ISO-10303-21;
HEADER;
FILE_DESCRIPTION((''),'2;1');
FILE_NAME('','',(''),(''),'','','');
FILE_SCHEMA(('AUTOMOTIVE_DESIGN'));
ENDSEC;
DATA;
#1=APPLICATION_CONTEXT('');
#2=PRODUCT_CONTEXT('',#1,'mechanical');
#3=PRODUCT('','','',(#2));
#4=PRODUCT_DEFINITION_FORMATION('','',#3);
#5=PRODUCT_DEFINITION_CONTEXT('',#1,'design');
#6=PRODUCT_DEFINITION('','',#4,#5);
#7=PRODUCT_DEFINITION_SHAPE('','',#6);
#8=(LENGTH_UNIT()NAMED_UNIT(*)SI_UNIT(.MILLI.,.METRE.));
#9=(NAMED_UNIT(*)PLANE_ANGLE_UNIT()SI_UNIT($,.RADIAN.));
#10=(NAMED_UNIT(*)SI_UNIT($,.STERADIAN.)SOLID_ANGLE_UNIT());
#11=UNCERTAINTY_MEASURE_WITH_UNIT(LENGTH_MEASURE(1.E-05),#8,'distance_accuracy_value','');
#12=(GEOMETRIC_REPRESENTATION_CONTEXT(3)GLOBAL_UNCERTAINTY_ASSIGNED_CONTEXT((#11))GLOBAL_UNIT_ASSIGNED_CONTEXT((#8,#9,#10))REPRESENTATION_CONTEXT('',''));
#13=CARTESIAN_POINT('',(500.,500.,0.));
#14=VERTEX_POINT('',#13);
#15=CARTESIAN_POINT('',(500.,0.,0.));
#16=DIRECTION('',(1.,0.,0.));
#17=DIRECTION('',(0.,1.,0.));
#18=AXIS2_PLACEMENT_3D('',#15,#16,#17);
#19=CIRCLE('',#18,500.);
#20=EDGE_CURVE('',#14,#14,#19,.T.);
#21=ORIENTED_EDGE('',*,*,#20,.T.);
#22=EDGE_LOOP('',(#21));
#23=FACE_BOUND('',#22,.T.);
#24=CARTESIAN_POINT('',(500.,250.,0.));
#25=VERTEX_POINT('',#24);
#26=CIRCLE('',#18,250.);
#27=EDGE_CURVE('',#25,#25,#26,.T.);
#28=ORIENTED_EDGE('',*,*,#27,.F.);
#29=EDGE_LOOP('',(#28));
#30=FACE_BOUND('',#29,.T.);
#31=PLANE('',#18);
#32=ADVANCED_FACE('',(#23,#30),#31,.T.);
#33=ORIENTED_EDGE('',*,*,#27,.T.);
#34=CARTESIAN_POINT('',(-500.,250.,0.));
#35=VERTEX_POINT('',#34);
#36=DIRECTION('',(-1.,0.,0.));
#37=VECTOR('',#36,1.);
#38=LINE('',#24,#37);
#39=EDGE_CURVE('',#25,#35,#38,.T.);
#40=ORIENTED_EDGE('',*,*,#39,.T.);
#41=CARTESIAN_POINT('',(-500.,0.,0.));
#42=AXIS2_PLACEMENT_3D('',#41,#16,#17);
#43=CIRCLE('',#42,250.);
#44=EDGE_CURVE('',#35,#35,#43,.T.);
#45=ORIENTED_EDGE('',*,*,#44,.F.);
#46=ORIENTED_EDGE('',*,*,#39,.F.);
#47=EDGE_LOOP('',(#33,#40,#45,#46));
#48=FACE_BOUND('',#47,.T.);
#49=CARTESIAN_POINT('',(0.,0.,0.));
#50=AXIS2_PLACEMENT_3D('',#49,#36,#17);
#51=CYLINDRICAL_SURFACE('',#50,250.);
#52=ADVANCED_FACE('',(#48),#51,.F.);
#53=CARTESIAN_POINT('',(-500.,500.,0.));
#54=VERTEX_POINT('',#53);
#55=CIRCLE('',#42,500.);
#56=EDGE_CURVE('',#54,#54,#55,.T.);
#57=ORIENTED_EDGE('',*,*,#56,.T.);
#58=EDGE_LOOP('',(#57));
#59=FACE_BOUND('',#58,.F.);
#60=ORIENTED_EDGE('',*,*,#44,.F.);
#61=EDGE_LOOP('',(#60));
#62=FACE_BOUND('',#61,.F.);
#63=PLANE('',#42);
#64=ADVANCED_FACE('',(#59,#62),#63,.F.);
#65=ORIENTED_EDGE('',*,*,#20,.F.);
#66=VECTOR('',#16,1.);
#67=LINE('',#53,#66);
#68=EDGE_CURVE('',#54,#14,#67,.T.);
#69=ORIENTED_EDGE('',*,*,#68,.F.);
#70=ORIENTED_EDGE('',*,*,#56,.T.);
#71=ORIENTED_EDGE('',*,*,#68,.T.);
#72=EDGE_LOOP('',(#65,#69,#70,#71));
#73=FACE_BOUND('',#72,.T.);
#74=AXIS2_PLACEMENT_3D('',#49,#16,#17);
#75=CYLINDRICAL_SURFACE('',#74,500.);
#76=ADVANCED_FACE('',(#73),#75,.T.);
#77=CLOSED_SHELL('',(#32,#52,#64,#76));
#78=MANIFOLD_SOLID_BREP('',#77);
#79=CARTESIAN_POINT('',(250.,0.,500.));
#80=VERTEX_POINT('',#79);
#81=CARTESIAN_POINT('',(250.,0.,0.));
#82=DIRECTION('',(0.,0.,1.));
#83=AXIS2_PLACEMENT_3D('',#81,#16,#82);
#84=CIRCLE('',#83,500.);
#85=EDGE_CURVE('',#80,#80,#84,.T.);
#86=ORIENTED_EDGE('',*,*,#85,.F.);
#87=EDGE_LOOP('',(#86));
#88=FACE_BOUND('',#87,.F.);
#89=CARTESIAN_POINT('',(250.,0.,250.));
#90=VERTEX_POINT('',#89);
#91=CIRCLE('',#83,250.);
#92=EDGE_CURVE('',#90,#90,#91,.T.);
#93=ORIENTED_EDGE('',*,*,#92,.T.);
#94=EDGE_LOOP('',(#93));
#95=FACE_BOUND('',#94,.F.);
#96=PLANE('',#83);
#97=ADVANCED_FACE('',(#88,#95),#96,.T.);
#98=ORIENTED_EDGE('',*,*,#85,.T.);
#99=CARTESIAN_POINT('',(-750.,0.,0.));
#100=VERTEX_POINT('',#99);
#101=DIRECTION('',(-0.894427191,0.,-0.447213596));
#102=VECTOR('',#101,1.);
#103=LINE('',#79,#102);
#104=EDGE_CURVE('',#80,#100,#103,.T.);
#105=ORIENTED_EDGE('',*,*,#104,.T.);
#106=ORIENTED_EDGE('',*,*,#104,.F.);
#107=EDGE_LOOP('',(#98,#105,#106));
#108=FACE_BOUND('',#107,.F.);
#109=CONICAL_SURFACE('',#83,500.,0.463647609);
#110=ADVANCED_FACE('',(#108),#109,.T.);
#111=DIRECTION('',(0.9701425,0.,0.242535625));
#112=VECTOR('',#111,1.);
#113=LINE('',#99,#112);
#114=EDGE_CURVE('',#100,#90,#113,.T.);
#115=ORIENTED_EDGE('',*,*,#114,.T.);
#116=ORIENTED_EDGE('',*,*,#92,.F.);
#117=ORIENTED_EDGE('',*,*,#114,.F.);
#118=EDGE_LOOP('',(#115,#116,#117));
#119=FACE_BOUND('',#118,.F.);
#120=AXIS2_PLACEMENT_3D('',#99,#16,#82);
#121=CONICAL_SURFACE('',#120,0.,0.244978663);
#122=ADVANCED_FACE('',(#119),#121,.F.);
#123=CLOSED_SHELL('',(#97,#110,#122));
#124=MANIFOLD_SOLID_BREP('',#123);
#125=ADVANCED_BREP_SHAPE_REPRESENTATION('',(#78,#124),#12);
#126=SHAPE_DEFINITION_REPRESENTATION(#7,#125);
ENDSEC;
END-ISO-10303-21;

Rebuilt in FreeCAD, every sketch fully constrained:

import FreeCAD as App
import Part
import Sketcher
from FreeCAD import Vector
Q = App.Units.Quantity


def add_polygon(sketch, points):
    """Adds a closed chain of lines whose ends are joined by coincident constraints."""
    first, n = sketch.GeometryCount, len(points)
    for a, b in zip(points, points[1:] + points[:1]):
        sketch.addGeometry(Part.LineSegment(App.Vector(*a, 0), App.Vector(*b, 0)), False)
    for i in range(n):
        sketch.addConstraint(Sketcher.Constraint("Coincident", first + i, 2, first + (i + 1) % n, 1))

doc = App.newDocument("Part")
params = doc.addObject("Spreadsheet::Sheet", "Params")
for row, (alias, value) in enumerate([
    ("sketch1_diameter", "1000 mm"),
    ("sketch1_diameter2", "500 mm"),
    ("pad1_length", "1000 mm"),
    ("sketch2_height", "250 mm"),
    ("revolution_angle", "360 deg"),
], start=1):
    params.set(f"A{row}", alias)
    params.set(f"B{row}", "=" + value)
    params.setAlias(f"B{row}", alias)

body = doc.addObject("PartDesign::Body", "Body")

# Sketch on YZ plane
sketch1 = body.newObject("Sketcher::SketchObject", "Sketch")
sketch1.AttachmentSupport = (doc.getObject("YZ_Plane"), [""])
sketch1.MapMode = "FlatFace"
sketch1.addGeometry(Part.Circle(Vector(0, 0, 0), Vector(0, 0, 1), 500), False)
sketch1.addGeometry(Part.Circle(Vector(0, 0, 0), Vector(0, 0, 1), 250), False)
sketch1.addConstraint(Sketcher.Constraint("Coincident", 0, 3, -1, 1))
sketch1.addConstraint(Sketcher.Constraint("Coincident", 1, 3, -1, 1))
sketch1.addConstraint(Sketcher.Constraint("Diameter", 0, Q("1000 mm")))
sketch1.addConstraint(Sketcher.Constraint("Diameter", 1, Q("500 mm")))
sketch1.setExpression("Constraints[2]", "Params.sketch1_diameter")
sketch1.setExpression("Constraints[3]", "Params.sketch1_diameter2")
pad1 = body.newObject("PartDesign::Pad", "Pad")
pad1.Profile = sketch1
pad1.setExpression("Length", "Params.pad1_length")
pad1.Midplane = True
body2 = doc.addObject("PartDesign::Body", "Body001")

# Sketch on XZ plane
sketch2 = body2.newObject("Sketcher::SketchObject", "Sketch001")
sketch2.AttachmentSupport = (doc.getObject("XZ_Plane001"), [""])
sketch2.MapMode = "FlatFace"
add_polygon(sketch2, [(250, 500), (-750, 0), (250, 250)])  # lines 0-2
sketch2.addConstraint(Sketcher.Constraint("Vertical", 2))
sketch2.addConstraint(Sketcher.Constraint("PointOnObject", 0, 2, -1))
sketch2.addConstraint(Sketcher.Constraint("DistanceY", 2, 1, 2, 2, Q("250 mm")))
sketch2.addConstraint(Sketcher.Constraint("DistanceX", 0, 2, -1, 1, Q("750 mm")))
sketch2.addConstraint(Sketcher.Constraint("DistanceX", -1, 1, 1, 2, Q("250 mm")))
sketch2.addConstraint(Sketcher.Constraint("DistanceY", -1, 1, 1, 2, Q("250 mm")))
sketch2.setExpression("Constraints[5]", "Params.sketch2_height")
revolution = body2.newObject("PartDesign::Revolution", "Revolution")
revolution.Profile = sketch2
revolution.ReferenceAxis = (sketch2, ["H_Axis"])
revolution.setExpression("Angle", "Params.revolution_angle")

doc.recompute()
